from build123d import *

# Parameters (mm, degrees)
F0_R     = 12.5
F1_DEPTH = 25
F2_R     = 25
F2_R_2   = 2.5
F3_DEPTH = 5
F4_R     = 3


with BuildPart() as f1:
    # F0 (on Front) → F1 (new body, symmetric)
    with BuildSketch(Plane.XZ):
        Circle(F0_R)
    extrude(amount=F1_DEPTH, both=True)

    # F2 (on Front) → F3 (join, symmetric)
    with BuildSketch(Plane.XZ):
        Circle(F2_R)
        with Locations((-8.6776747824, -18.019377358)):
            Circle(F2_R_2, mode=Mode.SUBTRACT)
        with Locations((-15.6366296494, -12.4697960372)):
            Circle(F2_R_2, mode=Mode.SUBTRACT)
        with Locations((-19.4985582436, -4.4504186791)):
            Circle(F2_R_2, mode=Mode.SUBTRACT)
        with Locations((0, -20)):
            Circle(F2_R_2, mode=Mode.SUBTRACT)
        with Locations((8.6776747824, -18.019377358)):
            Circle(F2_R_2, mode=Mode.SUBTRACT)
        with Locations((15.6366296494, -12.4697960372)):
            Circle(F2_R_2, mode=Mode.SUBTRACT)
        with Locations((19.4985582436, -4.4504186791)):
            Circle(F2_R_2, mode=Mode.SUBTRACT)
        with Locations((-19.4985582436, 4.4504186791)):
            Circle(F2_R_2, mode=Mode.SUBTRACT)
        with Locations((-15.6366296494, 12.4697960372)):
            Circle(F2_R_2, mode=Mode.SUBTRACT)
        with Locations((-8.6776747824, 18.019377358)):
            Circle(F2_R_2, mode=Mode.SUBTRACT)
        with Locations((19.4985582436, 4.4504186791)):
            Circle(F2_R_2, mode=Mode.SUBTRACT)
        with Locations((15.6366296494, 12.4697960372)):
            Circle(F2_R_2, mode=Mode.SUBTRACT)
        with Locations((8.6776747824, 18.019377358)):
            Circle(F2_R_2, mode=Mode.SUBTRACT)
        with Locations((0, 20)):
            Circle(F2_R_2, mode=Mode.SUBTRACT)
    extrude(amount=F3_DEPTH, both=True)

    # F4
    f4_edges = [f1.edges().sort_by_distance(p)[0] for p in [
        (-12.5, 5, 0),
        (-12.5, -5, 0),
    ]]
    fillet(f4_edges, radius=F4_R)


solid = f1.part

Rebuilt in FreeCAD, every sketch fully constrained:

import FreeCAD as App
import Part
import Sketcher
Q = App.Units.Quantity


def edges_at(feature, points):
    """Names of the edges that pass closest to the given points."""
    edges = feature.Shape.Edges
    near = lambda p: min(range(len(edges)), key=lambda i: edges[i].distToShape(Part.Vertex(*p))[0])
    return sorted({f"Edge{near(p) + 1}" for p in points})

doc = App.newDocument("Part")
body = doc.addObject("PartDesign::Body", "Body")

# Sketch on XZ plane
sketch1 = body.newObject("Sketcher::SketchObject", "Sketch")
sketch1.AttachmentSupport = (doc.getObject("XZ_Plane"), [""])
sketch1.MapMode = "FlatFace"
sketch1.addGeometry(Part.Circle(App.Vector(0, 0, 0), App.Vector(0, 0, 1), 12.5), False)
sketch1.addConstraint([
    Sketcher.Constraint("Coincident", 0, 3, -1, 1),
    Sketcher.Constraint("Diameter", 0, Q("25 mm")),
])
pad1 = body.newObject("PartDesign::Pad", "Pad")
pad1.Profile = sketch1
pad1.Length = 50
pad1.Midplane = True

# Sketch on XZ plane
sketch2 = body.newObject("Sketcher::SketchObject", "Sketch001")
sketch2.AttachmentSupport = (doc.getObject("XZ_Plane"), [""])
sketch2.MapMode = "FlatFace"
sketch2.addGeometry([
    Part.Circle(App.Vector(0, 0, 0), App.Vector(0, 0, 1), 25),  # 0
    Part.Circle(App.Vector(-15.63663, -12.469796, 0), App.Vector(0, 0, 1), 2.5),  # 1
    Part.Circle(App.Vector(-8.677675, -18.019377, 0), App.Vector(0, 0, 1), 2.5),  # 2
    Part.Circle(App.Vector(-19.498558, -4.450419, 0), App.Vector(0, 0, 1), 2.5),  # 3
    Part.Circle(App.Vector(0, -20, 0), App.Vector(0, 0, 1), 2.5),  # 4
    Part.Circle(App.Vector(8.677675, -18.019377, 0), App.Vector(0, 0, 1), 2.5),  # 5
    Part.Circle(App.Vector(15.63663, -12.469796, 0), App.Vector(0, 0, 1), 2.5),  # 6
    Part.Circle(App.Vector(19.498558, -4.450419, 0), App.Vector(0, 0, 1), 2.5),  # 7
    Part.Circle(App.Vector(-19.498558, 4.450419, 0), App.Vector(0, 0, 1), 2.5),  # 8
    Part.Circle(App.Vector(-15.63663, 12.469796, 0), App.Vector(0, 0, 1), 2.5),  # 9
    Part.Circle(App.Vector(-8.677675, 18.019377, 0), App.Vector(0, 0, 1), 2.5),  # 10
    Part.Circle(App.Vector(19.498558, 4.450419, 0), App.Vector(0, 0, 1), 2.5),  # 11
    Part.Circle(App.Vector(0, 20, 0), App.Vector(0, 0, 1), 2.5),  # 12
    Part.Circle(App.Vector(8.677675, 18.019377, 0), App.Vector(0, 0, 1), 2.5),  # 13
    Part.Circle(App.Vector(15.63663, 12.469796, 0), App.Vector(0, 0, 1), 2.5),  # 14
], False)
sketch2.addConstraint([
    Sketcher.Constraint("Coincident", 0, 3, -1, 1),
    Sketcher.Constraint("Equal", 1, 2),
    Sketcher.Constraint("Equal", 2, 3),
    Sketcher.Constraint("Equal", 3, 4),
    Sketcher.Constraint("Equal", 4, 5),
    Sketcher.Constraint("Equal", 5, 6),
    Sketcher.Constraint("Equal", 6, 7),
    Sketcher.Constraint("Equal", 7, 8),
    Sketcher.Constraint("Equal", 8, 9),
    Sketcher.Constraint("Equal", 9, 10),
    Sketcher.Constraint("Equal", 10, 11),
    Sketcher.Constraint("Equal", 11, 12),
    Sketcher.Constraint("Equal", 12, 13),
    Sketcher.Constraint("Equal", 13, 14),
    Sketcher.Constraint("Symmetric", 7, 3, 8, 3, -1, 1),
    Sketcher.Constraint("Symmetric", 6, 3, 9, 3, -1, 1),
    Sketcher.Constraint("Symmetric", 5, 3, 10, 3, -1, 1),
    Sketcher.Constraint("Symmetric", 3, 3, 11, 3, -1, 1),
    Sketcher.Constraint("Symmetric", 4, 3, 12, 3, -1, 1),
    Sketcher.Constraint("Symmetric", 2, 3, 13, 3, -1, 1),
    Sketcher.Constraint("Symmetric", 1, 3, 14, 3, -1, 1),
    Sketcher.Constraint("Symmetric", 2, 3, 5, 3, -2),
    Sketcher.Constraint("Symmetric", 1, 3, 6, 3, -2),
    Sketcher.Constraint("Symmetric", 3, 3, 7, 3, -2),
    Sketcher.Constraint("PointOnObject", 4, 3, -2),
    Sketcher.Constraint("Diameter", 0, Q("50 mm")),
    Sketcher.Constraint("Diameter", 1, Q("5 mm")),
    Sketcher.Constraint("DistanceY", 4, 3, -1, 1, Q("20 mm")),
    Sketcher.Constraint("DistanceX", 1, 3, -1, 1, Q("15.63663 mm")),
    Sketcher.Constraint("DistanceX", 3, 3, -1, 1, Q("19.498558 mm")),
    Sketcher.Constraint("DistanceY", 3, 3, -1, 1, Q("4.450419 mm")),
    Sketcher.Constraint("DistanceY", 2, 3, 1, 3, Q("5.549581 mm")),
    Sketcher.Constraint("DistanceY", 2, 3, 3, 3, Q("13.568959 mm")),
    Sketcher.Constraint("DistanceX", 2, 3, 5, 3, Q("17.35535 mm")),
])
pad2 = body.newObject("PartDesign::Pad", "Pad001")
pad2.Profile = sketch2
pad2.Length = 10
pad2.Midplane = True
doc.recompute()

fillet = body.newObject("PartDesign::Fillet", "Fillet")
fillet.Base = (pad2, edges_at(pad2, [(-12.5, 5, 0), (-12.5, -5, 0)]))
fillet.Radius = 3

doc.recompute()
